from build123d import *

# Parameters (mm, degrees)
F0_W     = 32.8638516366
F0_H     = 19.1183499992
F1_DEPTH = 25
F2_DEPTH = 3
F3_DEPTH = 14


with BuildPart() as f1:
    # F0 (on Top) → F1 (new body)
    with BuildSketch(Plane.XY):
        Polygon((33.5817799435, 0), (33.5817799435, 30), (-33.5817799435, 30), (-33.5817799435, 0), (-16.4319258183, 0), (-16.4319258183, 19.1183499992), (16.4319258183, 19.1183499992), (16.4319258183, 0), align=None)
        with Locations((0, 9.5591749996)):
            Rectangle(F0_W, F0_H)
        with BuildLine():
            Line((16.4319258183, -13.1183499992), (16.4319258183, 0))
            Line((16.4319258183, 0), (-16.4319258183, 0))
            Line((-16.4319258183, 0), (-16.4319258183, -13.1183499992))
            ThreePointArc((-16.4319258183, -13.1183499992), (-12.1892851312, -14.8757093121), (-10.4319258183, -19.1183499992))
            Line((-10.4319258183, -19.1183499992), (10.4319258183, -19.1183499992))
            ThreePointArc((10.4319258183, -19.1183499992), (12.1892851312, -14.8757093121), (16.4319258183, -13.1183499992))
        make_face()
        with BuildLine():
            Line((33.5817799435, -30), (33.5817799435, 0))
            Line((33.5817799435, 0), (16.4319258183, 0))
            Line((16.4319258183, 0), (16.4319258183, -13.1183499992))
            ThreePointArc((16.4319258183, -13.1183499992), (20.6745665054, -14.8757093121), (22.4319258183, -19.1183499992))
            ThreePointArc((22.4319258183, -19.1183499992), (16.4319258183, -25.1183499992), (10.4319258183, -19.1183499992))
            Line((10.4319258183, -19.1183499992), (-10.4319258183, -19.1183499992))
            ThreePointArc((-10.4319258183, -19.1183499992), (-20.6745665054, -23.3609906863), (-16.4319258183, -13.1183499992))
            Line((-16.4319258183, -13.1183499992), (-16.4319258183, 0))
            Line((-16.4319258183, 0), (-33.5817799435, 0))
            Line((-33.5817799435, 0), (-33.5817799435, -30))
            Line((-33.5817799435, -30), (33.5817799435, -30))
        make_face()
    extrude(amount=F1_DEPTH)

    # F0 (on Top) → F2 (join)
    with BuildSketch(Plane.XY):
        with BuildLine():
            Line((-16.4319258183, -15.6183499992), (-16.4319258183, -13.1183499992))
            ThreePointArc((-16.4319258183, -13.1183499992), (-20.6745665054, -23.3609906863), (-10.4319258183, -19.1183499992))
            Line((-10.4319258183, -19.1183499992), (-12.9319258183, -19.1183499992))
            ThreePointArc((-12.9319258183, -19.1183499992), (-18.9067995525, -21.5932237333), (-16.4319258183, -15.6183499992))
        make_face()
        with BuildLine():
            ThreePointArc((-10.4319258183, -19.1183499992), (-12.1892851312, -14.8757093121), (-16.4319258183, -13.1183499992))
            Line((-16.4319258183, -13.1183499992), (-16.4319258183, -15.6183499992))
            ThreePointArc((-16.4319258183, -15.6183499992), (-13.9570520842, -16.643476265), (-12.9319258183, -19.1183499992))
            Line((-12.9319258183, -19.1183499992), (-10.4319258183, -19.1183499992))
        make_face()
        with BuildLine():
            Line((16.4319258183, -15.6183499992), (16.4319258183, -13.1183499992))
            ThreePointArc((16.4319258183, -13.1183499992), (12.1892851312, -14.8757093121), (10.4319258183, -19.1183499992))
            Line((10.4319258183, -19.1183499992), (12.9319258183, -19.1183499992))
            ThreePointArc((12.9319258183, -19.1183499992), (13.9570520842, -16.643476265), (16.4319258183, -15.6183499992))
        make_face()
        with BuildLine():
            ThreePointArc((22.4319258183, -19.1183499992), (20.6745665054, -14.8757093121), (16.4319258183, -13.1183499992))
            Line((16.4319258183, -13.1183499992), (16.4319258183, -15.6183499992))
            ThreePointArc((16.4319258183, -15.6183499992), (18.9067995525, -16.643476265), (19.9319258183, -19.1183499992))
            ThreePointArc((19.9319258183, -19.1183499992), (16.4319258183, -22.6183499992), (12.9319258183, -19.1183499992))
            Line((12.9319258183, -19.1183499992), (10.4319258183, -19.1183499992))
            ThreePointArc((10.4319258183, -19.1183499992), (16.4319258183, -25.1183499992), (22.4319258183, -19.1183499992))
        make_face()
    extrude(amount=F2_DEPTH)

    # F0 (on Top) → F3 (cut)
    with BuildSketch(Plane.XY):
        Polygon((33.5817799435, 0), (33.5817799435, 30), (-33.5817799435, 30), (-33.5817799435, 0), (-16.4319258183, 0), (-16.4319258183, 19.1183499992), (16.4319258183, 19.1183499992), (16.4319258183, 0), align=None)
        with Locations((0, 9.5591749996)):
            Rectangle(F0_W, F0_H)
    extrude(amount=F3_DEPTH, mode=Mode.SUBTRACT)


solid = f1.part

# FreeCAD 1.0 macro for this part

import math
import FreeCAD as App
import Part
import Sketcher
from FreeCAD import Vector
Q = App.Units.Quantity

doc = App.newDocument("Part")
body = doc.addObject("PartDesign::Body", "Body")

# Sketch on XY plane
sketch1 = body.newObject("Sketcher::SketchObject", "Sketch")
sketch1.AttachmentSupport = (doc.getObject("XY_Plane"), [""])
sketch1.MapMode = "FlatFace"
sketch1.addGeometry([
    Part.LineSegment(Vector(34, 30, 0), Vector(-34, 30, 0)),  # 0
    Part.LineSegment(Vector(-34, 30, 0), Vector(-34, -30, 0)),  # 1
    Part.LineSegment(Vector(-34, -30, 0), Vector(34, -30, 0)),  # 2
    Part.LineSegment(Vector(34, -30, 0), Vector(34, 30, 0)),  # 3
    Part.ArcOfCircle(Part.Circle(Vector(-16, -19, 0), Vector(0, 0, 1), 6), math.radians(0), math.radians(90)),  # 4
    Part.ArcOfCircle(Part.Circle(Vector(-16, -19, 0), Vector(0, 0, 1), 6), math.radians(90), math.radians(360)),  # 5
    Part.ArcOfCircle(Part.Circle(Vector(16, -19, 0), Vector(0, 0, 1), 6), math.radians(90), math.radians(180)),  # 6
    Part.ArcOfCircle(Part.Circle(Vector(16, -19, 0), Vector(0, 0, 1), 6), math.radians(0), math.radians(90)),  # 7
    Part.ArcOfCircle(Part.Circle(Vector(16, -19, 0), Vector(0, 0, 1), 6), math.radians(180), math.radians(360)),  # 8
], False)
sketch1.addConstraint([
    Sketcher.Constraint("Coincident", 0, 2, 1, 1),
    Sketcher.Constraint("Coincident", 1, 2, 2, 1),
    Sketcher.Constraint("Coincident", 2, 2, 3, 1),
    Sketcher.Constraint("Coincident", 3, 2, 0, 1),
    Sketcher.Constraint("Tangent", 4, 1, 5, 2),
    Sketcher.Constraint("Coincident", 5, 1, 4, 2),
    Sketcher.Constraint("Tangent", 6, 1, 7, 2),
    Sketcher.Constraint("Tangent", 7, 1, 8, 2),
    Sketcher.Constraint("Tangent", 8, 1, 6, 2),
    Sketcher.Constraint("Horizontal", 0),
    Sketcher.Constraint("Vertical", 1),
    Sketcher.Constraint("Horizontal", 2),
    Sketcher.Constraint("Vertical", 3),
    Sketcher.Constraint("Equal", 5, 6),
    Sketcher.Constraint("Symmetric", 0, 2, 2, 2, -1, 1),
    Sketcher.Constraint("Symmetric", 4, 3, 6, 3, -2),
    Sketcher.Constraint("Horizontal", 8, 3, 4, 1),
    Sketcher.Constraint("Horizontal", 4, 1, 7, 1),
    Sketcher.Constraint("Horizontal", 7, 1, 8, 1),
    Sketcher.Constraint("Vertical", 4, 3, 5, 1),
    Sketcher.Constraint("Vertical", 8, 3, 6, 1),
    Sketcher.Constraint("Radius", 4, Q("6 mm")),
    Sketcher.Constraint("DistanceY", 1, 2, 1, 1, Q("60 mm")),
    Sketcher.Constraint("DistanceX", 0, 2, 0, 1, Q("67.16356 mm")),
    Sketcher.Constraint("DistanceY", 4, 3, -1, 1, Q("19.11835 mm")),
    Sketcher.Constraint("DistanceX", 4, 3, 6, 3, Q("32.863852 mm")),
])
pad1 = body.newObject("PartDesign::Pad", "Pad")
pad1.Profile = sketch1
pad1.Length = 25

# Sketch on XY plane
sketch2 = body.newObject("Sketcher::SketchObject", "Sketch001")
sketch2.AttachmentSupport = (doc.getObject("XY_Plane"), [""])
sketch2.MapMode = "FlatFace"
sketch2.addGeometry([
    Part.ArcOfCircle(Part.Circle(Vector(-16.4, -19.1, 0), Vector(0, 0, 1), 6), math.radians(90), math.radians(360)),  # 0
    Part.ArcOfCircle(Part.Circle(Vector(-16.4, -19.1, 0), Vector(0, 0, 1), 6), math.radians(0), math.radians(90)),  # 1
    Part.ArcOfCircle(Part.Circle(Vector(-16.4, -19.1, 0), Vector(0, 0, 1), 3.5), math.radians(90), math.radians(360)),  # 2
    Part.ArcOfCircle(Part.Circle(Vector(-16.4, -19.1, 0), Vector(0, 0, 1), 3.5), math.radians(0), math.radians(90)),  # 3
    Part.ArcOfCircle(Part.Circle(Vector(16.4, -19.1, 0), Vector(0, 0, 1), 6), math.radians(90), math.radians(180)),  # 4
    Part.ArcOfCircle(Part.Circle(Vector(16.4, -19.1, 0), Vector(0, 0, 1), 6), math.radians(180), math.radians(360)),  # 5
    Part.ArcOfCircle(Part.Circle(Vector(16.4, -19.1, 0), Vector(0, 0, 1), 6), math.radians(0), math.radians(90)),  # 6
    Part.ArcOfCircle(Part.Circle(Vector(16.4, -19.1, 0), Vector(0, 0, 1), 3.5), math.radians(90), math.radians(180)),  # 7
    Part.ArcOfCircle(Part.Circle(Vector(16.4, -19.1, 0), Vector(0, 0, 1), 3.5), math.radians(0), math.radians(90)),  # 8
    Part.ArcOfCircle(Part.Circle(Vector(16.4, -19.1, 0), Vector(0, 0, 1), 3.5), math.radians(180), math.radians(360)),  # 9
], False)
sketch2.addConstraint([
    Sketcher.Constraint("Tangent", 0, 1, 1, 2),
    Sketcher.Constraint("Coincident", 1, 1, 0, 2),
    Sketcher.Constraint("Tangent", 2, 1, 3, 2),
    Sketcher.Constraint("Coincident", 3, 1, 2, 2),
    Sketcher.Constraint("Tangent", 4, 2, 5, 1),
    Sketcher.Constraint("Tangent", 5, 2, 6, 1),
    Sketcher.Constraint("Tangent", 6, 2, 4, 1),
    Sketcher.Constraint("Tangent", 7, 1, 8, 2),
    Sketcher.Constraint("Tangent", 8, 1, 9, 2),
    Sketcher.Constraint("Tangent", 9, 1, 7, 2),
    Sketcher.Constraint("Coincident", 2, 3, 0, 3),
    Sketcher.Constraint("Coincident", 7, 3, 4, 3),
    Sketcher.Constraint("Equal", 1, 4),
    Sketcher.Constraint("Equal", 3, 7),
    Sketcher.Constraint("Symmetric", 0, 3, 4, 3, -2),
    Sketcher.Constraint("Horizontal", 9, 3, 1, 1),
    Sketcher.Constraint("Horizontal", 1, 1, 3, 1),
    Sketcher.Constraint("Horizontal", 3, 1, 4, 2),
    Sketcher.Constraint("Horizontal", 4, 2, 5, 2),
    Sketcher.Constraint("Horizontal", 5, 2, 8, 1),
    Sketcher.Constraint("Horizontal", 8, 1, 9, 1),
    Sketcher.Constraint("Vertical", 3, 3, 0, 1),
    Sketcher.Constraint("Vertical", 0, 1, 2, 1),
    Sketcher.Constraint("Vertical", 9, 3, 6, 2),
    Sketcher.Constraint("Vertical", 6, 2, 7, 1),
    Sketcher.Constraint("Radius", 0, Q("6 mm")),
    Sketcher.Constraint("Radius", 2, Q("3.5 mm")),
    Sketcher.Constraint("DistanceY", 0, 3, -1, 1, Q("19.11835 mm")),
    Sketcher.Constraint("DistanceX", 0, 3, 4, 3, Q("32.863852 mm")),
])
pad2 = body.newObject("PartDesign::Pad", "Pad001")
pad2.Profile = sketch2
pad2.Length = 3

# Sketch on XY plane
sketch3 = body.newObject("Sketcher::SketchObject", "Sketch002")
sketch3.AttachmentSupport = (doc.getObject("XY_Plane"), [""])
sketch3.MapMode = "FlatFace"
sketch3.addGeometry([
    Part.LineSegment(Vector(34, 0, 0), Vector(34, 30, 0)),
    Part.LineSegment(Vector(34, 30, 0), Vector(-34, 30, 0)),
    Part.LineSegment(Vector(-34, 30, 0), Vector(-34, 0, 0)),
    Part.LineSegment(Vector(-34, 0, 0), Vector(34, 0, 0)),
], False)
sketch3.addConstraint([
    Sketcher.Constraint("Coincident", 0, 2, 1, 1),
    Sketcher.Constraint("Coincident", 1, 2, 2, 1),
    Sketcher.Constraint("Coincident", 2, 2, 3, 1),
    Sketcher.Constraint("Coincident", 3, 2, 0, 1),
    Sketcher.Constraint("Vertical", 0),
    Sketcher.Constraint("Horizontal", 1),
    Sketcher.Constraint("Vertical", 2),
    Sketcher.Constraint("Horizontal", 3),
    Sketcher.Constraint("Symmetric", 2, 2, 3, 2, -1, 1),
    Sketcher.Constraint("DistanceY", 0, 1, 0, 2, Q("30 mm")),
    Sketcher.Constraint("DistanceX", 1, 2, 1, 1, Q("67.16356 mm")),
])
pocket1 = body.newObject("PartDesign::Pocket", "Pocket")
pocket1.Profile = sketch3
pocket1.Length = 14
pocket1.Reversed = True

doc.recompute()
